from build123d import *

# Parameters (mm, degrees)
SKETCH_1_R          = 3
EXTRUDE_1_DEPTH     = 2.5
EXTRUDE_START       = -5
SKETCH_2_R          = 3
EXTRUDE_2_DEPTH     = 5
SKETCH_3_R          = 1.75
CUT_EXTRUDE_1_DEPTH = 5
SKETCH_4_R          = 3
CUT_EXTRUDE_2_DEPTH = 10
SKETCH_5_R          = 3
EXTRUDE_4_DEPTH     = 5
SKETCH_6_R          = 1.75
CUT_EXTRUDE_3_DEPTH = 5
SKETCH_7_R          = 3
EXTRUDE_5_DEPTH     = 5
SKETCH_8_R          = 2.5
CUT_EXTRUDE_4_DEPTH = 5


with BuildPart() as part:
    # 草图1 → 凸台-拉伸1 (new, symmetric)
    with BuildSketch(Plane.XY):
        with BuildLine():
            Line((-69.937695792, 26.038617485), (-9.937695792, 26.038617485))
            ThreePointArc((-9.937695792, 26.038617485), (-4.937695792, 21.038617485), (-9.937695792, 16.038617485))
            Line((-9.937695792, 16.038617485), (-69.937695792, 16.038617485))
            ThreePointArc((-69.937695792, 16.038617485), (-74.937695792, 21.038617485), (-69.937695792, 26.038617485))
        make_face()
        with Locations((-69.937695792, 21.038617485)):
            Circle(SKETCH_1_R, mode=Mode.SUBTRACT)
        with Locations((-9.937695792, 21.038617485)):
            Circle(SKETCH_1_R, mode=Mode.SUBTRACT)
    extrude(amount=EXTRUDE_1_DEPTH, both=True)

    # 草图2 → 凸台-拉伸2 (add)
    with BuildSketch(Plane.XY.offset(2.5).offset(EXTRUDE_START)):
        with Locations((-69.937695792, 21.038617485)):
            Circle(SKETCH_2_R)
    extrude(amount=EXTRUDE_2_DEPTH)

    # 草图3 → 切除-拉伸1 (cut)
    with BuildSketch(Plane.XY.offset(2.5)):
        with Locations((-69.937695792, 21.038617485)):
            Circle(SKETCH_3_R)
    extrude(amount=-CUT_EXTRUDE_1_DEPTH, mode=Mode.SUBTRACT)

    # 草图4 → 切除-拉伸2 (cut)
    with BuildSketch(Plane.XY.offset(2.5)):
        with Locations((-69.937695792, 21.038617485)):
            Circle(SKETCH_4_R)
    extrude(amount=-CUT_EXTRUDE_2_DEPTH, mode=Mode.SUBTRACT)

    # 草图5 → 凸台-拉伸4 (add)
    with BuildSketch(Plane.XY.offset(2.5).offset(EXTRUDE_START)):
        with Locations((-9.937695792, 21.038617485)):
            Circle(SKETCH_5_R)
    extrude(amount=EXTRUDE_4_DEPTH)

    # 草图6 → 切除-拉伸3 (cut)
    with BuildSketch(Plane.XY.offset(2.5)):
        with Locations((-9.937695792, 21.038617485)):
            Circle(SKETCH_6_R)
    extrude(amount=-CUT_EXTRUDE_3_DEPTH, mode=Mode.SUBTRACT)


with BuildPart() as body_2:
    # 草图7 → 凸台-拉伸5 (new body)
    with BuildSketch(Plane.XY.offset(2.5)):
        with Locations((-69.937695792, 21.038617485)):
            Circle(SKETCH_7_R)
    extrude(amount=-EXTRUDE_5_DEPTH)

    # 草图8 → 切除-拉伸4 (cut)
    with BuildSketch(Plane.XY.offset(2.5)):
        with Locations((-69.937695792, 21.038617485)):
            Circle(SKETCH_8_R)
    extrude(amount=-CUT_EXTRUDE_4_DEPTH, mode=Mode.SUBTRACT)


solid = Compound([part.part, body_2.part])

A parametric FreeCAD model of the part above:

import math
import FreeCAD as App
import Part
import Sketcher
Q = App.Units.Quantity

doc = App.newDocument("Part")
body = doc.addObject("PartDesign::Body", "Body")

# Sketch on XY plane
sketch1 = doc.addObject("Sketcher::SketchObject", "Sketch")
body.addObject(sketch1)
sketch1.AttachmentSupport = (doc.XY_Plane, [""])
sketch1.MapMode = "FlatFace"
sketch1.addGeometry([
    Part.LineSegment(App.Vector(-9.9, 26, 0), App.Vector(-69.9, 26, 0)),  # 0
    Part.ArcOfCircle(Part.Circle(App.Vector(-69.9, 21, 0), App.Vector(0, 0, 1), 5), math.radians(90), math.radians(270)),  # 1
    Part.LineSegment(App.Vector(-69.9, 16, 0), App.Vector(-9.9, 16, 0)),  # 2
    Part.ArcOfCircle(Part.Circle(App.Vector(-9.9, 21, 0), App.Vector(0, 0, 1), 5), math.radians(-90), math.radians(90)),  # 3
    Part.Circle(App.Vector(-9.9, 21, 0), App.Vector(0, 0, 1), 3),  # 4
    Part.Circle(App.Vector(-69.9, 21, 0), App.Vector(0, 0, 1), 3),  # 5
], False)
sketch1.addConstraint([
    Sketcher.Constraint("Tangent", 0, 2, 1, 1),
    Sketcher.Constraint("Tangent", 1, 2, 2, 1),
    Sketcher.Constraint("Tangent", 2, 2, 3, 1),
    Sketcher.Constraint("Tangent", 3, 2, 0, 1),
    Sketcher.Constraint("Horizontal", 0),
    Sketcher.Constraint("Horizontal", 2),
    Sketcher.Constraint("Coincident", 4, 3, 3, 3),
    Sketcher.Constraint("Coincident", 5, 3, 1, 3),
    Sketcher.Constraint("Equal", 4, 5),
    Sketcher.Constraint("Diameter", 4, Q("6 mm")),
    Sketcher.Constraint("Radius", 1, Q("5 mm")),
    Sketcher.Constraint("DistanceX", 0, 2, 0, 1, Q("60 mm")),
    Sketcher.Constraint("DistanceX", 1, 3, -1, 1, Q("69.937696 mm")),
    Sketcher.Constraint("DistanceY", -1, 1, 1, 3, Q("21.038617 mm")),
])
pad1 = doc.addObject("PartDesign::Pad", "Pad")
body.addObject(pad1)
pad1.Profile = sketch1
pad1.Length = 5
pad1.Midplane = True

# Sketch on XY plane
sketch2 = doc.addObject("Sketcher::SketchObject", "Sketch001")
body.addObject(sketch2)
sketch2.AttachmentSupport = (doc.XY_Plane, [""])
sketch2.MapMode = "FlatFace"
sketch2.AttachmentOffset = App.Placement(App.Vector(0, 0, -2.5), App.Rotation())
sketch2.addGeometry(Part.Circle(App.Vector(-69.9, 21, 0), App.Vector(0, 0, 1), 3), False)
sketch2.addConstraint([
    Sketcher.Constraint("Diameter", 0, Q("6 mm")),
    Sketcher.Constraint("DistanceX", 0, 3, -1, 1, Q("69.937696 mm")),
    Sketcher.Constraint("DistanceY", -1, 1, 0, 3, Q("21.038617 mm")),
])
pad2 = doc.addObject("PartDesign::Pad", "Pad001")
body.addObject(pad2)
pad2.Profile = sketch2
pad2.Length = 5

# Sketch on XY plane
sketch3 = doc.addObject("Sketcher::SketchObject", "Sketch002")
body.addObject(sketch3)
sketch3.AttachmentSupport = (doc.XY_Plane, [""])
sketch3.MapMode = "FlatFace"
sketch3.AttachmentOffset = App.Placement(App.Vector(0, 0, 2.5), App.Rotation())
sketch3.addGeometry(Part.Circle(App.Vector(-69.9, 21, 0), App.Vector(0, 0, 1), 1.8), False)
sketch3.addConstraint([
    Sketcher.Constraint("Diameter", 0, Q("3.5 mm")),
    Sketcher.Constraint("DistanceX", 0, 3, -1, 1, Q("69.937696 mm")),
    Sketcher.Constraint("DistanceY", -1, 1, 0, 3, Q("21.038617 mm")),
])
pocket1 = doc.addObject("PartDesign::Pocket", "Pocket")
body.addObject(pocket1)
pocket1.Profile = sketch3
pocket1.Length = 5

# Sketch on XY plane
sketch4 = doc.addObject("Sketcher::SketchObject", "Sketch003")
body.addObject(sketch4)
sketch4.AttachmentSupport = (doc.XY_Plane, [""])
sketch4.MapMode = "FlatFace"
sketch4.AttachmentOffset = App.Placement(App.Vector(0, 0, 2.5), App.Rotation())
sketch4.addGeometry(Part.Circle(App.Vector(-69.9, 21, 0), App.Vector(0, 0, 1), 3), False)
sketch4.addConstraint([
    Sketcher.Constraint("Diameter", 0, Q("6 mm")),
    Sketcher.Constraint("DistanceX", 0, 3, -1, 1, Q("69.937696 mm")),
    Sketcher.Constraint("DistanceY", -1, 1, 0, 3, Q("21.038617 mm")),
])
pocket2 = doc.addObject("PartDesign::Pocket", "Pocket001")
body.addObject(pocket2)
pocket2.Profile = sketch4
pocket2.Length = 10

# Sketch on XY plane
sketch5 = doc.addObject("Sketcher::SketchObject", "Sketch004")
body.addObject(sketch5)
sketch5.AttachmentSupport = (doc.XY_Plane, [""])
sketch5.MapMode = "FlatFace"
sketch5.AttachmentOffset = App.Placement(App.Vector(0, 0, -2.5), App.Rotation())
sketch5.addGeometry(Part.Circle(App.Vector(-9.9, 21, 0), App.Vector(0, 0, 1), 3), False)
sketch5.addConstraint([
    Sketcher.Constraint("Diameter", 0, Q("6 mm")),
    Sketcher.Constraint("DistanceX", 0, 3, -1, 1, Q("9.937696 mm")),
    Sketcher.Constraint("DistanceY", -1, 1, 0, 3, Q("21.038617 mm")),
])
pad3 = doc.addObject("PartDesign::Pad", "Pad002")
body.addObject(pad3)
pad3.Profile = sketch5
pad3.Length = 5

# Sketch on XY plane
sketch6 = doc.addObject("Sketcher::SketchObject", "Sketch005")
body.addObject(sketch6)
sketch6.AttachmentSupport = (doc.XY_Plane, [""])
sketch6.MapMode = "FlatFace"
sketch6.AttachmentOffset = App.Placement(App.Vector(0, 0, 2.5), App.Rotation())
sketch6.addGeometry(Part.Circle(App.Vector(-9.9, 21, 0), App.Vector(0, 0, 1), 1.8), False)
sketch6.addConstraint([
    Sketcher.Constraint("Diameter", 0, Q("3.5 mm")),
    Sketcher.Constraint("DistanceX", 0, 3, -1, 1, Q("9.937696 mm")),
    Sketcher.Constraint("DistanceY", -1, 1, 0, 3, Q("21.038617 mm")),
])
pocket3 = doc.addObject("PartDesign::Pocket", "Pocket002")
body.addObject(pocket3)
pocket3.Profile = sketch6
pocket3.Length = 5
body2 = doc.addObject("PartDesign::Body", "Body001")

# Sketch on XY plane
sketch7 = doc.addObject("Sketcher::SketchObject", "Sketch006")
body2.addObject(sketch7)
sketch7.AttachmentSupport = (doc.getObject("XY_Plane001"), [""])
sketch7.MapMode = "FlatFace"
sketch7.AttachmentOffset = App.Placement(App.Vector(0, 0, 2.5), App.Rotation())
sketch7.addGeometry(Part.Circle(App.Vector(-69.9, 21, 0), App.Vector(0, 0, 1), 3), False)
sketch7.addConstraint([
    Sketcher.Constraint("Diameter", 0, Q("6 mm")),
    Sketcher.Constraint("DistanceX", 0, 3, -1, 1, Q("69.937696 mm")),
    Sketcher.Constraint("DistanceY", -1, 1, 0, 3, Q("21.038617 mm")),
])
pad4 = doc.addObject("PartDesign::Pad", "Pad003")
body2.addObject(pad4)
pad4.Profile = sketch7
pad4.Length = 5
pad4.Reversed = True

# Sketch on XY plane
sketch8 = doc.addObject("Sketcher::SketchObject", "Sketch007")
body2.addObject(sketch8)
sketch8.AttachmentSupport = (doc.getObject("XY_Plane001"), [""])
sketch8.MapMode = "FlatFace"
sketch8.AttachmentOffset = App.Placement(App.Vector(0, 0, 2.5), App.Rotation())
sketch8.addGeometry(Part.Circle(App.Vector(-69.9, 21, 0), App.Vector(0, 0, 1), 2.5), False)
sketch8.addConstraint([
    Sketcher.Constraint("Diameter", 0, Q("5 mm")),
    Sketcher.Constraint("DistanceX", 0, 3, -1, 1, Q("69.937696 mm")),
    Sketcher.Constraint("DistanceY", -1, 1, 0, 3, Q("21.038617 mm")),
])
pocket4 = doc.addObject("PartDesign::Pocket", "Pocket003")
body2.addObject(pocket4)
pocket4.Profile = sketch8
pocket4.Length = 5

doc.recompute()
